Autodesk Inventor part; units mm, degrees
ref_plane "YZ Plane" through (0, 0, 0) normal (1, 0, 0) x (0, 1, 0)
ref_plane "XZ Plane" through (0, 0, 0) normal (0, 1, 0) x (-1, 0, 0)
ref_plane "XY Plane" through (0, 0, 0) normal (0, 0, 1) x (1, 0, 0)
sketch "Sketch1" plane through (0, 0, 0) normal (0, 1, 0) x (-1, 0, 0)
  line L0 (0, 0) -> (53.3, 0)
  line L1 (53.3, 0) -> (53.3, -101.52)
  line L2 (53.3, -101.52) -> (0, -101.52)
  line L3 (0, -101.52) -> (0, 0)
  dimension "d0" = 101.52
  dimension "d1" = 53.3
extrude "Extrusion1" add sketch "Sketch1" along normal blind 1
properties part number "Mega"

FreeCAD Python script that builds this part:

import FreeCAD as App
import Part
import Sketcher
from FreeCAD import Vector

doc = App.newDocument("Part")
body = doc.addObject("PartDesign::Body", "Body")

# Sketch on XZ plane
sketch1 = doc.addObject("Sketcher::SketchObject", "Sketch")
body.addObject(sketch1)
sketch1.AttachmentSupport = (doc.XZ_Plane, [""])
sketch1.MapMode = "FlatFace"
sketch1.addGeometry([
    Part.LineSegment(Vector(-53, 0, 0), Vector(0, 0, 0)),
    Part.LineSegment(Vector(0, 0, 0), Vector(0, -102, 0)),
    Part.LineSegment(Vector(0, -102, 0), Vector(-53, -102, 0)),
    Part.LineSegment(Vector(-53, -102, 0), Vector(-53, 0, 0)),
], False)
sketch1.addConstraint([
    Sketcher.Constraint("Coincident", 0, 2, 1, 1),
    Sketcher.Constraint("Coincident", 1, 2, 2, 1),
    Sketcher.Constraint("Coincident", 2, 2, 3, 1),
    Sketcher.Constraint("Coincident", 3, 2, 0, 1),
    Sketcher.Constraint("Horizontal", 0),
    Sketcher.Constraint("Vertical", 1),
    Sketcher.Constraint("Horizontal", 2),
    Sketcher.Constraint("Vertical", 3),
    Sketcher.Constraint("Coincident", 0, 2, -1, 1),
    Sketcher.Constraint("DistanceX", 0, 1, 0, 2, 53.3),
    Sketcher.Constraint("DistanceY", 1, 2, 1, 1, 101.52),
])
pad1 = doc.addObject("PartDesign::Pad", "Pad")
body.addObject(pad1)
pad1.Profile = sketch1
pad1.Length = 1
pad1.Reversed = True

doc.recompute()
